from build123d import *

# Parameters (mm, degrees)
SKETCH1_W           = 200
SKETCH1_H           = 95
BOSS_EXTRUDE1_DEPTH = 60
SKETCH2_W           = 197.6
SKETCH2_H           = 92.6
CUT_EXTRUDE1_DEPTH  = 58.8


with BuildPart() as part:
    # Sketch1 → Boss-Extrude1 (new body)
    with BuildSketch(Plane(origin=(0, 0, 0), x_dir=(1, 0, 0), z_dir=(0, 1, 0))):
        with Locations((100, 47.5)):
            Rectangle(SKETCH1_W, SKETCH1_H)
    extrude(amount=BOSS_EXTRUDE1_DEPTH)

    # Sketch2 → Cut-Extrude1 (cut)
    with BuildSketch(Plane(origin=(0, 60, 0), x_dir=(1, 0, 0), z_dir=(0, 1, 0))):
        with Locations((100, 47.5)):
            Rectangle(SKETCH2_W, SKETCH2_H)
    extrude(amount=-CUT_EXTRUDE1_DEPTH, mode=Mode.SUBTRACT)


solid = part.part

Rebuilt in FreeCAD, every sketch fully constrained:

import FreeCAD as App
import Part
import Sketcher

V = App.Vector


def add_polygon(sketch, points):
    """Adds a closed chain of lines whose ends are joined by coincident constraints."""
    first, n = sketch.GeometryCount, len(points)
    for a, b in zip(points, points[1:] + points[:1]):
        sketch.addGeometry(Part.LineSegment(App.Vector(*a, 0), App.Vector(*b, 0)), False)
    for i in range(n):
        sketch.addConstraint(Sketcher.Constraint("Coincident", first + i, 2, first + (i + 1) % n, 1))

doc = App.newDocument("Part")
params = doc.addObject("Spreadsheet::Sheet", "Params")
for row, (alias, value) in enumerate([
    ("sketch1_width", "200 mm"),
    ("sketch1_height", "95 mm"),
    ("pad1_length", "60 mm"),
    ("sketch2_width", "197.6 mm"),
    ("sketch2_height", "92.6 mm"),
    ("pocket1_length", "58.8 mm"),
], start=1):
    params.set(f"A{row}", alias)
    params.set(f"B{row}", "=" + value)
    params.setAlias(f"B{row}", alias)

body = doc.addObject("PartDesign::Body", "Body")

# Sketch on XZ plane
sketch1 = body.newObject("Sketcher::SketchObject", "Sketch")
sketch1.AttachmentSupport = (doc.getObject("XZ_Plane"), [""])
sketch1.MapMode = "FlatFace"
add_polygon(sketch1, [(0, -95), (0, 0), (200, 0), (200, -95)])  # lines 0-3
sketch1.addConstraint([
    Sketcher.Constraint("Vertical", 0),
    Sketcher.Constraint("Horizontal", 1),
    Sketcher.Constraint("Vertical", 2),
    Sketcher.Constraint("Horizontal", 3),
    Sketcher.Constraint("Coincident", 0, 2, -1, 1),
    Sketcher.Constraint("DistanceX", 1, 1, 1, 2, 200.0),
    Sketcher.Constraint("DistanceY", 0, 1, 0, 2, 95.0),
])
sketch1.setExpression("Constraints[9]", "Params.sketch1_width")
sketch1.setExpression("Constraints[10]", "Params.sketch1_height")
pad1 = body.newObject("PartDesign::Pad", "Pad")
pad1.Profile = sketch1
pad1.setExpression("Length", "Params.pad1_length")
pad1.Reversed = True

# Sketch on XZ plane
sketch2 = body.newObject("Sketcher::SketchObject", "Sketch001")
sketch2.AttachmentSupport = (doc.getObject("XZ_Plane"), [""])
sketch2.MapMode = "FlatFace"
sketch2.AttachmentOffset = App.Placement(V(0, 0, -60), App.Rotation())
add_polygon(sketch2, [(1, -94), (1, -1), (199, -1), (199, -94)])  # lines 0-3
sketch2.addConstraint([
    Sketcher.Constraint("Vertical", 0),
    Sketcher.Constraint("Horizontal", 1),
    Sketcher.Constraint("Vertical", 2),
    Sketcher.Constraint("Horizontal", 3),
    Sketcher.Constraint("DistanceX", 1, 1, 1, 2, 197.6),
    Sketcher.Constraint("DistanceY", 0, 1, 0, 2, 92.6),
    Sketcher.Constraint("DistanceX", -1, 1, 0, 2, 1.2),
    Sketcher.Constraint("DistanceY", 0, 2, -1, 1, 1.2),
])
sketch2.setExpression("Constraints[8]", "Params.sketch2_width")
sketch2.setExpression("Constraints[9]", "Params.sketch2_height")
pocket1 = body.newObject("PartDesign::Pocket", "Pocket")
pocket1.Profile = sketch2
pocket1.setExpression("Length", "Params.pocket1_length")
pocket1.Reversed = True

doc.recompute()
